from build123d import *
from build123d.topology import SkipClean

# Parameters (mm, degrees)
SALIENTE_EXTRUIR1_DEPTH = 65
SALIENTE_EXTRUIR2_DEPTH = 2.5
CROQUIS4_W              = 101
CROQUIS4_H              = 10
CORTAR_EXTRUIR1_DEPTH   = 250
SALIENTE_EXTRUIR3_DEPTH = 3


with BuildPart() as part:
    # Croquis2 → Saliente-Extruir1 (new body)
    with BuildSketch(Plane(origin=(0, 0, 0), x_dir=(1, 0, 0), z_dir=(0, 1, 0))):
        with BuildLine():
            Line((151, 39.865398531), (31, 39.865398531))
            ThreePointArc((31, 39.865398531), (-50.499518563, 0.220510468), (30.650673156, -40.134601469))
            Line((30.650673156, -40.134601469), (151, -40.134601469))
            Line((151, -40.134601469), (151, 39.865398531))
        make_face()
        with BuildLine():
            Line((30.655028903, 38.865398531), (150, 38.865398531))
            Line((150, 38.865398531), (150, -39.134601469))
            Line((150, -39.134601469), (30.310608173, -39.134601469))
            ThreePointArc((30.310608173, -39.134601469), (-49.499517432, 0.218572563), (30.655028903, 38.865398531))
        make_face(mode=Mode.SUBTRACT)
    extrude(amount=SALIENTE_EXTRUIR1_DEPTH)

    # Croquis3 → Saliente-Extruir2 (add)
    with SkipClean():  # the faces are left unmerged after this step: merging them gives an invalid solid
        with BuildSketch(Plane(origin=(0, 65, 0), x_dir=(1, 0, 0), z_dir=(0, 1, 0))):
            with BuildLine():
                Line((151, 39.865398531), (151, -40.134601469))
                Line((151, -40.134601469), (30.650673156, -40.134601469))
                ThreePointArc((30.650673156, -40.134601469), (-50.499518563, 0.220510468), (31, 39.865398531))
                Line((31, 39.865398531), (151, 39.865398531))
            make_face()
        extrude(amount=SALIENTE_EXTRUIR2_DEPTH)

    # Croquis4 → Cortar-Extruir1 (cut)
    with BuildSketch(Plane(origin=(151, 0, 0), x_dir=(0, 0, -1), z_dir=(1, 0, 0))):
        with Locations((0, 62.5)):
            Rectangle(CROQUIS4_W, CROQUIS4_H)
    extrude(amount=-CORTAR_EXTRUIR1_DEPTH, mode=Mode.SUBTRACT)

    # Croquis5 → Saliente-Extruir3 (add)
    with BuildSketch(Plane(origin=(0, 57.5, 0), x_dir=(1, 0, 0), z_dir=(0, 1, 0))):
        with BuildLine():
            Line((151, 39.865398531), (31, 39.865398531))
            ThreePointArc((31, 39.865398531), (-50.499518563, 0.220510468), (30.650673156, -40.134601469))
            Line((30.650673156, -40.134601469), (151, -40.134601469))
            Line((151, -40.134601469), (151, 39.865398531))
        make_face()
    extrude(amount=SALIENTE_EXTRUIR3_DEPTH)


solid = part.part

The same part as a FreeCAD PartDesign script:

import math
import FreeCAD as App
import Part
import Sketcher
from FreeCAD import Vector
Q = App.Units.Quantity


def add_polygon(sketch, points):
    """Adds a closed chain of lines whose ends are joined by coincident constraints."""
    first, n = sketch.GeometryCount, len(points)
    for a, b in zip(points, points[1:] + points[:1]):
        sketch.addGeometry(Part.LineSegment(App.Vector(*a, 0), App.Vector(*b, 0)), False)
    for i in range(n):
        sketch.addConstraint(Sketcher.Constraint("Coincident", first + i, 2, first + (i + 1) % n, 1))

doc = App.newDocument("Part")
body = doc.addObject("PartDesign::Body", "Body")

sketch1 = body.newObject("Sketcher::SketchObject", "Sketch")
sketch1.AttachmentSupport = (doc.getObject("XZ_Plane"), [""])
sketch1.MapMode = "FlatFace"
sketch1.addGeometry(Part.LineSegment(Vector(151, -40, 0), Vector(31, -40, 0)), False)
sketch1.addGeometry(Part.ArcOfCircle(Part.Circle(Vector(0, 0, 0), Vector(0, 0, 1), 50), math.radians(53), math.radians(308)), False)
sketch1.addGeometry(Part.LineSegment(Vector(31, 40, 0), Vector(151, 40, 0)), False)
sketch1.addGeometry(Part.LineSegment(Vector(151, 40, 0), Vector(151, -40, 0)), False)
sketch1.addGeometry(Part.ArcOfCircle(Part.Circle(Vector(0, 0, 0), Vector(0, 0, 1), 50), math.radians(52), math.radians(308)), False)
sketch1.addGeometry(Part.LineSegment(Vector(31, -39, 0), Vector(150, -39, 0)), False)
sketch1.addGeometry(Part.LineSegment(Vector(150, -39, 0), Vector(150, 39, 0)), False)
sketch1.addGeometry(Part.LineSegment(Vector(150, 39, 0), Vector(30, 39, 0)), False)
sketch1.addConstraint(Sketcher.Constraint("Coincident", 0, 2, 1, 2))
sketch1.addConstraint(Sketcher.Constraint("Coincident", 1, 1, 2, 1))
sketch1.addConstraint(Sketcher.Constraint("Coincident", 2, 2, 3, 1))
sketch1.addConstraint(Sketcher.Constraint("Coincident", 3, 2, 0, 1))
sketch1.addConstraint(Sketcher.Constraint("Coincident", 4, 2, 5, 1))
sketch1.addConstraint(Sketcher.Constraint("Coincident", 5, 2, 6, 1))
sketch1.addConstraint(Sketcher.Constraint("Coincident", 6, 2, 7, 1))
sketch1.addConstraint(Sketcher.Constraint("Coincident", 7, 2, 4, 1))
sketch1.addConstraint(Sketcher.Constraint("Horizontal", 0))
sketch1.addConstraint(Sketcher.Constraint("Horizontal", 2))
sketch1.addConstraint(Sketcher.Constraint("Vertical", 3))
sketch1.addConstraint(Sketcher.Constraint("Horizontal", 5))
sketch1.addConstraint(Sketcher.Constraint("Vertical", 6))
sketch1.addConstraint(Sketcher.Constraint("Horizontal", 7))
sketch1.addConstraint(Sketcher.Constraint("Coincident", 1, 3, -1, 1))
sketch1.addConstraint(Sketcher.Constraint("Coincident", 4, 3, -1, 1))
sketch1.addConstraint(Sketcher.Constraint("Radius", 1, Q("50.5 mm")))
sketch1.addConstraint(Sketcher.Constraint("Radius", 4, Q("49.5 mm")))
sketch1.addConstraint(Sketcher.Constraint("DistanceX", 0, 2, 0, 1, Q("120 mm")))
sketch1.addConstraint(Sketcher.Constraint("DistanceY", 3, 2, 3, 1, Q("80 mm")))
sketch1.addConstraint(Sketcher.Constraint("DistanceY", 6, 1, 6, 2, Q("78 mm")))
sketch1.addConstraint(Sketcher.Constraint("DistanceX", -1, 1, 0, 2, Q("31 mm")))
sketch1.addConstraint(Sketcher.Constraint("DistanceX", -1, 1, 5, 2, Q("150 mm")))
sketch1.addConstraint(Sketcher.Constraint("DistanceY", 0, 2, 4, 2, Q("1 mm")))
pad1 = body.newObject("PartDesign::Pad", "Pad")
pad1.Profile = sketch1
pad1.Length = 65
pad1.Reversed = True

sketch2 = body.newObject("Sketcher::SketchObject", "Sketch001")
sketch2.AttachmentSupport = (doc.getObject("XZ_Plane"), [""])
sketch2.MapMode = "FlatFace"
sketch2.AttachmentOffset = App.Placement(Vector(0, 0, -65), App.Rotation())
sketch2.addGeometry(Part.LineSegment(Vector(151, 40, 0), Vector(151, -40, 0)), False)
sketch2.addGeometry(Part.LineSegment(Vector(151, -40, 0), Vector(31, -40, 0)), False)
sketch2.addGeometry(Part.ArcOfCircle(Part.Circle(Vector(0, 0, 0), Vector(0, 0, 1), 50), math.radians(53), math.radians(308)), False)
sketch2.addGeometry(Part.LineSegment(Vector(31, 40, 0), Vector(151, 40, 0)), False)
sketch2.addConstraint(Sketcher.Constraint("Coincident", 0, 2, 1, 1))
sketch2.addConstraint(Sketcher.Constraint("Coincident", 1, 2, 2, 2))
sketch2.addConstraint(Sketcher.Constraint("Coincident", 2, 1, 3, 1))
sketch2.addConstraint(Sketcher.Constraint("Coincident", 3, 2, 0, 1))
sketch2.addConstraint(Sketcher.Constraint("Vertical", 0))
sketch2.addConstraint(Sketcher.Constraint("Horizontal", 1))
sketch2.addConstraint(Sketcher.Constraint("Horizontal", 3))
sketch2.addConstraint(Sketcher.Constraint("Coincident", 2, 3, -1, 1))
sketch2.addConstraint(Sketcher.Constraint("Radius", 2, Q("50.5 mm")))
sketch2.addConstraint(Sketcher.Constraint("DistanceX", 1, 2, 1, 1, Q("120 mm")))
sketch2.addConstraint(Sketcher.Constraint("DistanceY", 0, 2, 0, 1, Q("80 mm")))
sketch2.addConstraint(Sketcher.Constraint("DistanceX", -1, 1, 0, 2, Q("151 mm")))
pad2 = body.newObject("PartDesign::Pad", "Pad001")
pad2.Profile = sketch2
pad2.Length = 2.5
pad2.Reversed = True

sketch3 = body.newObject("Sketcher::SketchObject", "Sketch002")
sketch3.AttachmentSupport = (doc.getObject("YZ_Plane"), [""])
sketch3.MapMode = "FlatFace"
sketch3.AttachmentOffset = App.Placement(Vector(0, 0, 151), App.Rotation())
add_polygon(sketch3, [(68, 50), (58, 50), (58, -50), (68, -50)])
sketch3.addConstraint(Sketcher.Constraint("Horizontal", 0))
sketch3.addConstraint(Sketcher.Constraint("Vertical", 1))
sketch3.addConstraint(Sketcher.Constraint("Horizontal", 2))
sketch3.addConstraint(Sketcher.Constraint("Vertical", 3))
sketch3.addConstraint(Sketcher.Constraint("DistanceX", 0, 2, 0, 1, Q("10 mm")))
sketch3.addConstraint(Sketcher.Constraint("DistanceY", 1, 2, 1, 1, Q("101 mm")))
sketch3.addConstraint(Sketcher.Constraint("DistanceX", -1, 1, 0, 2, Q("57.5 mm")))
sketch3.addConstraint(Sketcher.Constraint("DistanceY", -1, 1, 0, 2, Q("50.5 mm")))
pocket1 = body.newObject("PartDesign::Pocket", "Pocket")
pocket1.Profile = sketch3
pocket1.Length = 250

sketch4 = body.newObject("Sketcher::SketchObject", "Sketch003")
sketch4.AttachmentSupport = (doc.getObject("XZ_Plane"), [""])
sketch4.MapMode = "FlatFace"
sketch4.AttachmentOffset = App.Placement(Vector(0, 0, -57.5), App.Rotation())
sketch4.addGeometry(Part.LineSegment(Vector(151, -40, 0), Vector(31, -40, 0)), False)
sketch4.addGeometry(Part.ArcOfCircle(Part.Circle(Vector(0, 0, 0), Vector(0, 0, 1), 50), math.radians(53), math.radians(308)), False)
sketch4.addGeometry(Part.LineSegment(Vector(31, 40, 0), Vector(151, 40, 0)), False)
sketch4.addGeometry(Part.LineSegment(Vector(151, 40, 0), Vector(151, -40, 0)), False)
sketch4.addConstraint(Sketcher.Constraint("Coincident", 0, 2, 1, 2))
sketch4.addConstraint(Sketcher.Constraint("Coincident", 1, 1, 2, 1))
sketch4.addConstraint(Sketcher.Constraint("Coincident", 2, 2, 3, 1))
sketch4.addConstraint(Sketcher.Constraint("Coincident", 3, 2, 0, 1))
sketch4.addConstraint(Sketcher.Constraint("Horizontal", 0))
sketch4.addConstraint(Sketcher.Constraint("Horizontal", 2))
sketch4.addConstraint(Sketcher.Constraint("Vertical", 3))
sketch4.addConstraint(Sketcher.Constraint("Coincident", 1, 3, -1, 1))
sketch4.addConstraint(Sketcher.Constraint("Radius", 1, Q("50.5 mm")))
sketch4.addConstraint(Sketcher.Constraint("DistanceX", 0, 2, 0, 1, Q("120 mm")))
sketch4.addConstraint(Sketcher.Constraint("DistanceY", 3, 2, 3, 1, Q("80 mm")))
sketch4.addConstraint(Sketcher.Constraint("DistanceX", -1, 1, 0, 2, Q("31 mm")))
pad3 = body.newObject("PartDesign::Pad", "Pad002")
pad3.Profile = sketch4
pad3.Length = 3
pad3.Reversed = True

doc.recompute()
